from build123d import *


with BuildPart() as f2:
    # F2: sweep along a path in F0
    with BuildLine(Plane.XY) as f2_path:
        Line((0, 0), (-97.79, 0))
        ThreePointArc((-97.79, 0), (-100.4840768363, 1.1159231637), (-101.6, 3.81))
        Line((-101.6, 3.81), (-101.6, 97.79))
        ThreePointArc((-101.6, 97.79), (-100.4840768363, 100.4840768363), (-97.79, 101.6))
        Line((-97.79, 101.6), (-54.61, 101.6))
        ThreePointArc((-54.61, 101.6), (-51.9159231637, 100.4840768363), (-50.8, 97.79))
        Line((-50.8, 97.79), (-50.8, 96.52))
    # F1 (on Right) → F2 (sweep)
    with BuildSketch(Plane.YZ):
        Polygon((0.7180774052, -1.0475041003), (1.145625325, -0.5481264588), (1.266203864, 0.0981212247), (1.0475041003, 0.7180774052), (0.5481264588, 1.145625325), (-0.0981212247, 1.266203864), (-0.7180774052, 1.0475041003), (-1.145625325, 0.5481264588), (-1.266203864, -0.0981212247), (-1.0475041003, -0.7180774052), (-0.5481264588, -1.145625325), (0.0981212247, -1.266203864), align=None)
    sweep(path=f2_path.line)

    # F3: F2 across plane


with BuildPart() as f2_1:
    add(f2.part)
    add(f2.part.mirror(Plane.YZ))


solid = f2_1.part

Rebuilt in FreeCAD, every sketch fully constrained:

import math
import FreeCAD as App
import Part
import Sketcher
from FreeCAD import Vector
Q = App.Units.Quantity

doc = App.newDocument("Part")
body = doc.addObject("PartDesign::Body", "Body")

sketch1 = body.newObject("Sketcher::SketchObject", "Sketch")
sketch1.AttachmentSupport = (doc.getObject("YZ_Plane"), [""])
sketch1.MapMode = "FlatFace"
sketch1.addGeometry([
    Part.LineSegment(Vector(0.7, -1, 0), Vector(1.1, -0.5, 0)),
    Part.LineSegment(Vector(1.1, -0.5, 0), Vector(1.3, 0.1, 0)),
    Part.LineSegment(Vector(1.3, 0.1, 0), Vector(1, 0.7, 0)),
    Part.LineSegment(Vector(1, 0.7, 0), Vector(0.5, 1.1, 0)),
    Part.LineSegment(Vector(0.5, 1.1, 0), Vector(-0.1, 1.3, 0)),
    Part.LineSegment(Vector(-0.1, 1.3, 0), Vector(-0.7, 1, 0)),
    Part.LineSegment(Vector(-0.7, 1, 0), Vector(-1.1, 0.5, 0)),
    Part.LineSegment(Vector(-1.1, 0.5, 0), Vector(-1.3, -0.1, 0)),
    Part.LineSegment(Vector(-1.3, -0.1, 0), Vector(-1, -0.7, 0)),
    Part.LineSegment(Vector(-1, -0.7, 0), Vector(-0.5, -1.1, 0)),
    Part.LineSegment(Vector(-0.5, -1.1, 0), Vector(0.1, -1.3, 0)),
    Part.LineSegment(Vector(0.1, -1.3, 0), Vector(0.7, -1, 0)),
], False)
sketch1.addConstraint([
    Sketcher.Constraint("Coincident", 0, 2, 1, 1),
    Sketcher.Constraint("Coincident", 1, 2, 2, 1),
    Sketcher.Constraint("Coincident", 2, 2, 3, 1),
    Sketcher.Constraint("Coincident", 3, 2, 4, 1),
    Sketcher.Constraint("Coincident", 4, 2, 5, 1),
    Sketcher.Constraint("Coincident", 5, 2, 6, 1),
    Sketcher.Constraint("Coincident", 6, 2, 7, 1),
    Sketcher.Constraint("Coincident", 7, 2, 8, 1),
    Sketcher.Constraint("Coincident", 8, 2, 9, 1),
    Sketcher.Constraint("Coincident", 9, 2, 10, 1),
    Sketcher.Constraint("Coincident", 10, 2, 11, 1),
    Sketcher.Constraint("Coincident", 11, 2, 0, 1),
    Sketcher.Constraint("Symmetric", 0, 2, 6, 2, -1, 1),
    Sketcher.Constraint("Symmetric", 1, 2, 7, 2, -1, 1),
    Sketcher.Constraint("Symmetric", 2, 2, 8, 2, -1, 1),
    Sketcher.Constraint("Symmetric", 3, 2, 9, 2, -1, 1),
    Sketcher.Constraint("Symmetric", 4, 2, 10, 2, -1, 1),
    Sketcher.Constraint("Symmetric", 5, 2, 11, 2, -1, 1),
    Sketcher.Constraint("Perpendicular", 0, 3),
    Sketcher.Constraint("Perpendicular", 1, 4),
    Sketcher.Constraint("Perpendicular", 2, 5),
    Sketcher.Constraint("Equal", 0, 1),
    Sketcher.Constraint("Equal", 1, 2),
    Sketcher.Constraint("Equal", 2, 3),
    Sketcher.Constraint("Equal", 3, 4),
    Sketcher.Constraint("Equal", 4, 5),
    Sketcher.Constraint("Distance", 0, 0.6574),
    Sketcher.Constraint("DistanceX", 2, 2, 1, 2, 0.2187),
    Sketcher.Constraint("DistanceX", 3, 2, 0, 2, 0.597499),
    Sketcher.Constraint("DistanceY", 7, 2, 2, 2, 0.816199),
])

sketch2 = body.newObject("Sketcher::SketchObject", "Sketch001")
sketch2.AttachmentSupport = (doc.getObject("XY_Plane"), [""])
sketch2.MapMode = "FlatFace"
sketch2.addGeometry([
    Part.LineSegment(Vector(0, 0, 0), Vector(-97.8, 0, 0)),
    Part.ArcOfCircle(Part.Circle(Vector(-97.8, 3.8, 0), Vector(0, 0, 1), 3.8), math.radians(180), math.radians(270)),
    Part.LineSegment(Vector(-101.6, 3.8, 0), Vector(-101.6, 97.8, 0)),
    Part.ArcOfCircle(Part.Circle(Vector(-97.8, 97.8, 0), Vector(0, 0, 1), 3.8), math.radians(90), math.radians(180)),
    Part.LineSegment(Vector(-97.8, 101.6, 0), Vector(-54.6, 101.6, 0)),
    Part.ArcOfCircle(Part.Circle(Vector(-54.6, 97.8, 0), Vector(0, 0, 1), 3.8), math.radians(0), math.radians(90)),
    Part.LineSegment(Vector(-50.8, 97.8, 0), Vector(-50.8, 96.5, 0)),
], False)
sketch2.addConstraint([
    Sketcher.Constraint("Tangent", 0, 2, 1, 2),
    Sketcher.Constraint("Tangent", 1, 1, 2, 1),
    Sketcher.Constraint("Tangent", 2, 2, 3, 2),
    Sketcher.Constraint("Tangent", 3, 1, 4, 1),
    Sketcher.Constraint("Tangent", 4, 2, 5, 2),
    Sketcher.Constraint("Tangent", 5, 1, 6, 1),
    Sketcher.Constraint("Horizontal", 0),
    Sketcher.Constraint("Vertical", 2),
    Sketcher.Constraint("Horizontal", 4),
    Sketcher.Constraint("Vertical", 6),
    Sketcher.Constraint("Coincident", 0, 1, -1, 1),
    Sketcher.Constraint("Equal", 1, 3),
    Sketcher.Constraint("Equal", 3, 5),
    Sketcher.Constraint("Radius", 1, Q("0.15 in")),
    Sketcher.Constraint("DistanceX", 4, 1, 4, 2, Q("1.7 in")),
    Sketcher.Constraint("DistanceY", 2, 1, 2, 2, Q("3.7 in")),
    Sketcher.Constraint("DistanceX", 1, 1, -1, 1, Q("4 in")),
    Sketcher.Constraint("DistanceY", 6, 2, 6, 1, Q("0.05 in")),
])
doc.recompute()

additivepipe = body.newObject("PartDesign::AdditivePipe", "AdditivePipe")
additivepipe.Profile = sketch1
additivepipe.Spine = (sketch2, ["Edge1", "Edge2", "Edge3", "Edge4", "Edge5", "Edge6", "Edge7"])
body2 = doc.addObject("PartDesign::Body", "Body001")
doc.recompute()

body2.BaseFeature = body
doc.recompute()

mirroring = doc.addObject("Part::Mirroring", "Mirroring")
mirroring.Source = body
mirroring.Base = Vector(0, 0, 0)
mirroring.Normal = Vector(1, 0, 0)
body3 = doc.addObject("PartDesign::Body", "Body002")
body3.BaseFeature = mirroring
boolean = body2.newObject("PartDesign::Boolean", "Boolean")
boolean.Type = "Fuse"
boolean.addObjects([body3])
doc.recompute()
mirroring.Visibility = False

doc.recompute()
